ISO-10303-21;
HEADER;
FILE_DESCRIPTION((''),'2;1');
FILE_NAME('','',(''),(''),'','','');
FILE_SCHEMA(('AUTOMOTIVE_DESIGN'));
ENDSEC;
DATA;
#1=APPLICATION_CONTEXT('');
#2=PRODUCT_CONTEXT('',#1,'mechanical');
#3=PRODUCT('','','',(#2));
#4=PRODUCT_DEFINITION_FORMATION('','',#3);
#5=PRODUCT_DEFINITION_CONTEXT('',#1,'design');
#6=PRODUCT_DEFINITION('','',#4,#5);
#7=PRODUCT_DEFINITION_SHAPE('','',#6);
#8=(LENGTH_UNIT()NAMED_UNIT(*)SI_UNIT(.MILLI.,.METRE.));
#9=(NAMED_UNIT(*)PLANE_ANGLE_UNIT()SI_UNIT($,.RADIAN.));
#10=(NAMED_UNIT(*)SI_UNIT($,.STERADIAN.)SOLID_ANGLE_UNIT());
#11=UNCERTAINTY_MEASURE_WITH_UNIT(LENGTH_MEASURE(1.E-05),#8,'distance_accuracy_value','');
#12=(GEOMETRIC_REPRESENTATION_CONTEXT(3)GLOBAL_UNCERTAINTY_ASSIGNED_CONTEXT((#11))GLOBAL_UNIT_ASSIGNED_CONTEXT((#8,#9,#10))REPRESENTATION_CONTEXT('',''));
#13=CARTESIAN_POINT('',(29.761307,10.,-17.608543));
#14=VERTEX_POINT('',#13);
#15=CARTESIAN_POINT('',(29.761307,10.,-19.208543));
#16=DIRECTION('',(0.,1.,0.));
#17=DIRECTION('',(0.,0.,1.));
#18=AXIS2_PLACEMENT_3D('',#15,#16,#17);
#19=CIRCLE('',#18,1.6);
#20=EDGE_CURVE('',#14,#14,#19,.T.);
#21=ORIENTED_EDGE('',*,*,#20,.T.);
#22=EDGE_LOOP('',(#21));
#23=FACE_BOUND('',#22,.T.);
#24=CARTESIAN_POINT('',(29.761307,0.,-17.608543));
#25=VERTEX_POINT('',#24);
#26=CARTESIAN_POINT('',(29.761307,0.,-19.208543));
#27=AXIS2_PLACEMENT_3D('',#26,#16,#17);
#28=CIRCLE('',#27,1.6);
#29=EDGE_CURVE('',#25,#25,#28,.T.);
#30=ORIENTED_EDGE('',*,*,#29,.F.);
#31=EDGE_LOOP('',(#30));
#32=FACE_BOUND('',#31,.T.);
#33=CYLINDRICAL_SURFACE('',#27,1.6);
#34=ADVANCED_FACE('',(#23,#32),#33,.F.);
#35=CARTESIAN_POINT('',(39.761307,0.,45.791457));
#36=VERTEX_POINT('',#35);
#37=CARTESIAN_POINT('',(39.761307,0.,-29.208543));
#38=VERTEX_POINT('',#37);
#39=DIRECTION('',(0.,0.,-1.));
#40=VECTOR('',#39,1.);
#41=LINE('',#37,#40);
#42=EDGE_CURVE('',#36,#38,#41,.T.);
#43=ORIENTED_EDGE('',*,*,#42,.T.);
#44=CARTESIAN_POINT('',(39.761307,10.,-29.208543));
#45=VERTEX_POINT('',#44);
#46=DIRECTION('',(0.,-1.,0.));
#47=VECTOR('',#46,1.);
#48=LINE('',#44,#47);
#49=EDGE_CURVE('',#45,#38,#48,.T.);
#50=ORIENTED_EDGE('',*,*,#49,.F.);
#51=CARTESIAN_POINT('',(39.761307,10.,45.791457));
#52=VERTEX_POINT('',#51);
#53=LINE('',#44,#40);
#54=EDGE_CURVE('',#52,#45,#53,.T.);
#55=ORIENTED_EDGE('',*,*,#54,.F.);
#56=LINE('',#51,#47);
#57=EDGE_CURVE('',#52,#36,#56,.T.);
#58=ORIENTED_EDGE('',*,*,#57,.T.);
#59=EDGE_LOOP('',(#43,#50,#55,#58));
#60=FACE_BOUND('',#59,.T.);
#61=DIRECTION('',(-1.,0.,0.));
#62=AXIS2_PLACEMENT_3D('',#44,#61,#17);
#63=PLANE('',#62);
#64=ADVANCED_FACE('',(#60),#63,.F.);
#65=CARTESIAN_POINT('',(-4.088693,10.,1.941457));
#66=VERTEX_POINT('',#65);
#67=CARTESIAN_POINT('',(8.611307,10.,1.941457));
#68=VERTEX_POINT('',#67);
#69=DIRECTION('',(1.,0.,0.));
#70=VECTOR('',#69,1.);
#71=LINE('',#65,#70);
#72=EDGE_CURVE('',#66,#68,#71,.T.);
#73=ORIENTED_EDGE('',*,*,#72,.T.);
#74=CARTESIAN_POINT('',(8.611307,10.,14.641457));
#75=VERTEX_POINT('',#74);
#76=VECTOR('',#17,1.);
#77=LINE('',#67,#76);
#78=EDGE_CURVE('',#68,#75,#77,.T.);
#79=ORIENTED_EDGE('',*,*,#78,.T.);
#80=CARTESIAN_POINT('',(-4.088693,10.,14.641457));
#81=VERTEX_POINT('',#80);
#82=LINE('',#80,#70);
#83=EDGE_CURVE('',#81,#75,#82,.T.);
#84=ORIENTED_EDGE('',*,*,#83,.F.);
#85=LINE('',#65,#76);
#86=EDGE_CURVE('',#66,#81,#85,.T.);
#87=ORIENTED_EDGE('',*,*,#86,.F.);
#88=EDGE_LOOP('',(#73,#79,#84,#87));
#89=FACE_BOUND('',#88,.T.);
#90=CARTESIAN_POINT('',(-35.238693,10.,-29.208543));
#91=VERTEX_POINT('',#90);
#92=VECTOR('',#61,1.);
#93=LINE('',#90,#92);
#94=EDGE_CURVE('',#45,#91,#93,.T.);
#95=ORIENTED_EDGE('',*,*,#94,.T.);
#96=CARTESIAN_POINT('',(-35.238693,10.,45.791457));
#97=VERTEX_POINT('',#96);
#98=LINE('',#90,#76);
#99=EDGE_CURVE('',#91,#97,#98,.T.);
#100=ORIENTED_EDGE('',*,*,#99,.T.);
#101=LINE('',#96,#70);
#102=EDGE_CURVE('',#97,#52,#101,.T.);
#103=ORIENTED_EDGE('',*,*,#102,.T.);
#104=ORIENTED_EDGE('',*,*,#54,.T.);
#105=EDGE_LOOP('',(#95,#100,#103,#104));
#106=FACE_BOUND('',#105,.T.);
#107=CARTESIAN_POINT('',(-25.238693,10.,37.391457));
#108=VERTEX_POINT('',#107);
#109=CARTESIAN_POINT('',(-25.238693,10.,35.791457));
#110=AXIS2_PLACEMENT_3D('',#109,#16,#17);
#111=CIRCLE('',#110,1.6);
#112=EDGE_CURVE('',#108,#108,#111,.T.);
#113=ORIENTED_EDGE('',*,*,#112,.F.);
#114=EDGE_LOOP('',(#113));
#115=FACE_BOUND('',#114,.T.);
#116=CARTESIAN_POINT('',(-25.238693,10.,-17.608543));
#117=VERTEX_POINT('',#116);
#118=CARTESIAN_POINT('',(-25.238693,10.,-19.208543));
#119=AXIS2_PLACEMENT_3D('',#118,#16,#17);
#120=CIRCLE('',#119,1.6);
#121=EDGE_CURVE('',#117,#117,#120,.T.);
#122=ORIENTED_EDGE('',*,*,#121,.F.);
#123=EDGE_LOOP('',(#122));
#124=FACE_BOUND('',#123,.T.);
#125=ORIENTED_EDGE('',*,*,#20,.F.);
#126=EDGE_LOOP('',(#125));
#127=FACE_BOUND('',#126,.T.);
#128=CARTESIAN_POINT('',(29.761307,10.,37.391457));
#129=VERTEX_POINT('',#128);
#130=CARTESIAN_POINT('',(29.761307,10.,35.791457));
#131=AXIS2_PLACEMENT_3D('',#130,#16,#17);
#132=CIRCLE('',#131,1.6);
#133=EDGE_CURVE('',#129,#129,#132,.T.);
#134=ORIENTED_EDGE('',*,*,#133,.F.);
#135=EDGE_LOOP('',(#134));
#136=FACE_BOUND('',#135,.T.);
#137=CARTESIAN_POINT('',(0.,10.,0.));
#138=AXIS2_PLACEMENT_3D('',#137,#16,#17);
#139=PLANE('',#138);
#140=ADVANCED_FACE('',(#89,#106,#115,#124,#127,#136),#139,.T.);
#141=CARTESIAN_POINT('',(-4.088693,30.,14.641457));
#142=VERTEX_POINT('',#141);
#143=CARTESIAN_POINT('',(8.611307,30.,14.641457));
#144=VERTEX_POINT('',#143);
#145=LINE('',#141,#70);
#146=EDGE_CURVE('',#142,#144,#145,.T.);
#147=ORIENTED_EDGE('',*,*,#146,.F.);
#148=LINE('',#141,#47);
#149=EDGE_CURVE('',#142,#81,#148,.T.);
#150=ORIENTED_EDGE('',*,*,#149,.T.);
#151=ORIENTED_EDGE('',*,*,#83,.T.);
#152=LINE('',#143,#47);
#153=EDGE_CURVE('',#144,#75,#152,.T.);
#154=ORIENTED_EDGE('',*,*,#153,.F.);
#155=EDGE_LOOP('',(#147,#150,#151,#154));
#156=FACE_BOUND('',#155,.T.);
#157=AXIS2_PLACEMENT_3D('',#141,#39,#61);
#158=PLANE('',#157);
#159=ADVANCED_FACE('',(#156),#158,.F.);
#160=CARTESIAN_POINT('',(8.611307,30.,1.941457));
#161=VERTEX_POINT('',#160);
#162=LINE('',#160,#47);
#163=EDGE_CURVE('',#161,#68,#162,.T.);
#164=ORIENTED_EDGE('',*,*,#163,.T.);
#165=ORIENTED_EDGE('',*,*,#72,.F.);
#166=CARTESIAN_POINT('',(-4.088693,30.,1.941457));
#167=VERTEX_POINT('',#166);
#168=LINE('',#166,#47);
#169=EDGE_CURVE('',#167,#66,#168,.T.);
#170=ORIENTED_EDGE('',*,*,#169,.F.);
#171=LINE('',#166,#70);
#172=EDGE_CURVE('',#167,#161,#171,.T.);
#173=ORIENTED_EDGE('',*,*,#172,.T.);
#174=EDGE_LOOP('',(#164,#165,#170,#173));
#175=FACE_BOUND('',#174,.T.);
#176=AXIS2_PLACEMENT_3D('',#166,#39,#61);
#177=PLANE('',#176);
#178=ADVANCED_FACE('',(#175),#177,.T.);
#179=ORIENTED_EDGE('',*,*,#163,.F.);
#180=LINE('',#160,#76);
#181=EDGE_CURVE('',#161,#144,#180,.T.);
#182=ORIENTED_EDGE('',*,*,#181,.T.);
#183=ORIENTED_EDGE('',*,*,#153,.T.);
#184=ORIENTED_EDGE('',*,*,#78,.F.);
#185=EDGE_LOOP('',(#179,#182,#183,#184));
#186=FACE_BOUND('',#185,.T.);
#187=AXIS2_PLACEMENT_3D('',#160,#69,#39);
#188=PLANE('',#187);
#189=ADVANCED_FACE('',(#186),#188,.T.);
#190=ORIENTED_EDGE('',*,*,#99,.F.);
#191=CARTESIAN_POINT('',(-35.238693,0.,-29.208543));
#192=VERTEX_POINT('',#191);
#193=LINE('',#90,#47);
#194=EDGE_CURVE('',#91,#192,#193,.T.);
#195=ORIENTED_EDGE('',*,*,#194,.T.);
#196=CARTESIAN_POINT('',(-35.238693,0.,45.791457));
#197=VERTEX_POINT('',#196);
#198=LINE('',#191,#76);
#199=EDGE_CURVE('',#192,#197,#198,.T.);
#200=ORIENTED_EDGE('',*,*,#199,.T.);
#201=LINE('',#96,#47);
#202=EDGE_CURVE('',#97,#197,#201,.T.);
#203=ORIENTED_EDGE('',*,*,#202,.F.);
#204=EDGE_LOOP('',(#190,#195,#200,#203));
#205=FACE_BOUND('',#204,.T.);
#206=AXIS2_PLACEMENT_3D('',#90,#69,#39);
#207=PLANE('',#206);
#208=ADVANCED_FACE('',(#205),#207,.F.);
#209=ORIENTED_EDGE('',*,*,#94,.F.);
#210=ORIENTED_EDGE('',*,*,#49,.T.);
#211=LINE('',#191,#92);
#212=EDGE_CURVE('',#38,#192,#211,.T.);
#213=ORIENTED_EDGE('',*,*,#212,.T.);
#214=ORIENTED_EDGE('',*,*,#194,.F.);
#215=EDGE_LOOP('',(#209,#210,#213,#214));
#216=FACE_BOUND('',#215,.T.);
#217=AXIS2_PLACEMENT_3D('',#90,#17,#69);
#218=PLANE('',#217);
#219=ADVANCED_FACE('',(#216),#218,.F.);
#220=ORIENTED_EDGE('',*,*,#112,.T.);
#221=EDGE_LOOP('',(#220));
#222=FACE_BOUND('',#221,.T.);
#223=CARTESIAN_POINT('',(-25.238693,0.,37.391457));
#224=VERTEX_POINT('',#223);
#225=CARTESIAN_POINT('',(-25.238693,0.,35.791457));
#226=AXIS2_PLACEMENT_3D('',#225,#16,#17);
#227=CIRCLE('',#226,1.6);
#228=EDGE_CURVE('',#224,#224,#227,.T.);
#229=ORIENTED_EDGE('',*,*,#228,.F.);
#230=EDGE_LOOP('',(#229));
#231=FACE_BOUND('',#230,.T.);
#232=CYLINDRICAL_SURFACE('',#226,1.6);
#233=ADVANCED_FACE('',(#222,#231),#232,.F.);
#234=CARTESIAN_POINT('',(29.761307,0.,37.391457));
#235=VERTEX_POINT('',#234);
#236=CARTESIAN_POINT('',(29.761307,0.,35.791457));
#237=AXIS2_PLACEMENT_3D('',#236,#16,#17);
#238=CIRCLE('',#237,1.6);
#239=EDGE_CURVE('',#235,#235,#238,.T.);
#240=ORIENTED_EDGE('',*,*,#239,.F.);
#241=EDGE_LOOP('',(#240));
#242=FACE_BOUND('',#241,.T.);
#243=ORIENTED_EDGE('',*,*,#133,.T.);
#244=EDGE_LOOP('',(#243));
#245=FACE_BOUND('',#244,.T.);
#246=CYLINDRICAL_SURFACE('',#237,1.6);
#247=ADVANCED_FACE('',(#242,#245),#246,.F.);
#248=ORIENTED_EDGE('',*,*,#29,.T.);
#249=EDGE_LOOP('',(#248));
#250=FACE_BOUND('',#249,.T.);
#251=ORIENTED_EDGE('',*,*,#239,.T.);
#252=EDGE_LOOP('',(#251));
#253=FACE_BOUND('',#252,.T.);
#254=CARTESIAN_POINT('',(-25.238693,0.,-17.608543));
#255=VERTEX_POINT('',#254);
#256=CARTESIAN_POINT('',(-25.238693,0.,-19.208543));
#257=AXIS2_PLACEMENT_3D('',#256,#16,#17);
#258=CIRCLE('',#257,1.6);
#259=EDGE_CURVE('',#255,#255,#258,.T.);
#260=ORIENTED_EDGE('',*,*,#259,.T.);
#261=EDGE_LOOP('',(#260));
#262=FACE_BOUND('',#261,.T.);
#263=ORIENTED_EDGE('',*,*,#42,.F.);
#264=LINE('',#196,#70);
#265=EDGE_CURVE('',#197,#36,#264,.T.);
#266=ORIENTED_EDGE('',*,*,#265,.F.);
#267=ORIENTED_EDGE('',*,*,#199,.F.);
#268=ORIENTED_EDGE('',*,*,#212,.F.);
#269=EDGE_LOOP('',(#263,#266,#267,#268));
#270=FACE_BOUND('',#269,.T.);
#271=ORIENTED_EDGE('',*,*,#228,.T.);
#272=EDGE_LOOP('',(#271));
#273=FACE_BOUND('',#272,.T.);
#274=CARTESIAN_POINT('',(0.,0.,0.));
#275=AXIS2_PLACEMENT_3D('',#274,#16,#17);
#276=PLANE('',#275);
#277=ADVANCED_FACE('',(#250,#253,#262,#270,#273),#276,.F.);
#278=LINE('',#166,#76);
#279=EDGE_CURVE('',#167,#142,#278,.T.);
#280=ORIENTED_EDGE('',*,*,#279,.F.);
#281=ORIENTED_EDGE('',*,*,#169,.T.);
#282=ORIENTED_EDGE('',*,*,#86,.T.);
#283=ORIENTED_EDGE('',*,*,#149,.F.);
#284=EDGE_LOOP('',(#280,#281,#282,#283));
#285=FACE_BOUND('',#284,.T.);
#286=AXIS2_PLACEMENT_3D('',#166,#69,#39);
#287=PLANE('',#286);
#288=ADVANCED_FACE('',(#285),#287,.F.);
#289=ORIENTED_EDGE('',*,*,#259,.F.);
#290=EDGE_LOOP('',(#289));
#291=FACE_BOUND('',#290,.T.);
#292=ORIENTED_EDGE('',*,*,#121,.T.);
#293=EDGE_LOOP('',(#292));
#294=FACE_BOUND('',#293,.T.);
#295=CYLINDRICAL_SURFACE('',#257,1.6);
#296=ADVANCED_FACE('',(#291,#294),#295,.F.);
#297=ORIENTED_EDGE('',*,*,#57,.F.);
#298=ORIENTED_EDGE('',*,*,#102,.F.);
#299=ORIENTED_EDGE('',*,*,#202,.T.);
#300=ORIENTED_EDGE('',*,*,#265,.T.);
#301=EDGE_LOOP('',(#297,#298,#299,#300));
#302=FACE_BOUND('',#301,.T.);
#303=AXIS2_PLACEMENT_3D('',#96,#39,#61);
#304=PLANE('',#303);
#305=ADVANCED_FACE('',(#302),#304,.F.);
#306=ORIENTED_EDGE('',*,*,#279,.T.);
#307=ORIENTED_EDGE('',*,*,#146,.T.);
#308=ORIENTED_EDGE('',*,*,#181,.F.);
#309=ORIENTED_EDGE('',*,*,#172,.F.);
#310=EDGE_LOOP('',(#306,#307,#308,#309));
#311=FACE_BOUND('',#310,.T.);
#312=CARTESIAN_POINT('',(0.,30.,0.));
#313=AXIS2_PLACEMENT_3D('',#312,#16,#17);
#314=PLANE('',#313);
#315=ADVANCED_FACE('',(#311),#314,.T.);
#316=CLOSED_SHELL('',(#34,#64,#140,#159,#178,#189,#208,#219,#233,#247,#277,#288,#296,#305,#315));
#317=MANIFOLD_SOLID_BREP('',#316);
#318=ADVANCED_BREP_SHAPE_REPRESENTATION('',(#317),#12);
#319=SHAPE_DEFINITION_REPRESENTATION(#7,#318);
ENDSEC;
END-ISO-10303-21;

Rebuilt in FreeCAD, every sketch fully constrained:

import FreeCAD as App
import Part
import Sketcher

V = App.Vector
Q = App.Units.Quantity


def add_polygon(sketch, points):
    """Adds a closed chain of lines whose ends are joined by coincident constraints."""
    first, n = sketch.GeometryCount, len(points)
    for a, b in zip(points, points[1:] + points[:1]):
        sketch.addGeometry(Part.LineSegment(App.Vector(*a, 0), App.Vector(*b, 0)), False)
    for i in range(n):
        sketch.addConstraint(Sketcher.Constraint("Coincident", first + i, 2, first + (i + 1) % n, 1))

doc = App.newDocument("Part")
body = doc.addObject("PartDesign::Body", "Body")

# Sketch on XZ plane
sketch1 = body.newObject("Sketcher::SketchObject", "Sketch")
sketch1.AttachmentSupport = (doc.getObject("XZ_Plane"), [""])
sketch1.MapMode = "FlatFace"
add_polygon(sketch1, [(-35.238693, -29.208543), (-35.238693, 45.791457), (39.761307, 45.791457), (39.761307, -29.208543)])  # lines 0-3
sketch1.addConstraint([
    Sketcher.Constraint("Vertical", 0),
    Sketcher.Constraint("Horizontal", 1),
    Sketcher.Constraint("Vertical", 2),
    Sketcher.Constraint("Horizontal", 3),
    Sketcher.Constraint("Equal", 3, 0),
    Sketcher.Constraint("DistanceX", 1, 1, 1, 2, Q("75 mm")),
    Sketcher.Constraint("DistanceX", 0, 2, -1, 1, Q("35.238693 mm")),
    Sketcher.Constraint("DistanceY", -1, 1, 0, 2, Q("45.791457 mm")),
])
pad1 = body.newObject("PartDesign::Pad", "Pad")
pad1.Profile = sketch1
pad1.Length = 10
pad1.Reversed = True

# Sketch on XZ plane
sketch2 = body.newObject("Sketcher::SketchObject", "Sketch001")
sketch2.AttachmentSupport = (doc.getObject("XZ_Plane"), [""])
sketch2.MapMode = "FlatFace"
sketch2.AttachmentOffset = App.Placement(V(0, 0, -10), App.Rotation())
sketch2.addGeometry([
    Part.Circle(V(-25.238693, -19.208543, 0), V(0, 0, 1), 1.6),
    Part.Circle(V(29.761307, -19.208543, 0), V(0, 0, 1), 1.6),
    Part.Circle(V(-25.238693, 35.791457, 0), V(0, 0, 1), 1.6),
    Part.Circle(V(29.761307, 35.791457, 0), V(0, 0, 1), 1.6),
], False)
sketch2.addConstraint([
    Sketcher.Constraint("Equal", 0, 1),
    Sketcher.Constraint("Equal", 1, 2),
    Sketcher.Constraint("Equal", 2, 3),
    Sketcher.Constraint("Horizontal", 0, 3, 1, 3),
    Sketcher.Constraint("Horizontal", 2, 3, 3, 3),
    Sketcher.Constraint("Vertical", 0, 3, 2, 3),
    Sketcher.Constraint("Vertical", 1, 3, 3, 3),
    Sketcher.Constraint("Diameter", 0, Q("3.2 mm")),
    Sketcher.Constraint("DistanceX", 0, 3, 1, 3, Q("55 mm")),
    Sketcher.Constraint("DistanceY", 0, 3, 2, 3, Q("55 mm")),
    Sketcher.Constraint("DistanceX", 0, 3, -1, 1, Q("25.238693 mm")),
    Sketcher.Constraint("DistanceY", 0, 3, -1, 1, Q("19.208543 mm")),
])
pocket1 = body.newObject("PartDesign::Pocket", "Pocket")
pocket1.Profile = sketch2
pocket1.Length = 10
pocket1.Reversed = True

# Sketch on XZ plane
sketch3 = body.newObject("Sketcher::SketchObject", "Sketch002")
sketch3.AttachmentSupport = (doc.getObject("XZ_Plane"), [""])
sketch3.MapMode = "FlatFace"
sketch3.AttachmentOffset = App.Placement(V(0, 0, -10), App.Rotation())
add_polygon(sketch3, [(-4.088693, 1.941457), (-4.088693, 14.641457), (8.611307, 14.641457), (8.611307, 1.941457)])  # lines 0-3
sketch3.addConstraint([
    Sketcher.Constraint("Vertical", 0),
    Sketcher.Constraint("Horizontal", 1),
    Sketcher.Constraint("Vertical", 2),
    Sketcher.Constraint("Horizontal", 3),
    Sketcher.Constraint("Equal", 3, 0),
    Sketcher.Constraint("DistanceX", 1, 1, 1, 2, Q("12.7 mm")),
    Sketcher.Constraint("DistanceX", 0, 2, -1, 1, Q("4.088693 mm")),
    Sketcher.Constraint("DistanceY", -1, 1, 0, 2, Q("14.641457 mm")),
])
pad2 = body.newObject("PartDesign::Pad", "Pad001")
pad2.Profile = sketch3
pad2.Length = 20
pad2.Reversed = True

doc.recompute()
